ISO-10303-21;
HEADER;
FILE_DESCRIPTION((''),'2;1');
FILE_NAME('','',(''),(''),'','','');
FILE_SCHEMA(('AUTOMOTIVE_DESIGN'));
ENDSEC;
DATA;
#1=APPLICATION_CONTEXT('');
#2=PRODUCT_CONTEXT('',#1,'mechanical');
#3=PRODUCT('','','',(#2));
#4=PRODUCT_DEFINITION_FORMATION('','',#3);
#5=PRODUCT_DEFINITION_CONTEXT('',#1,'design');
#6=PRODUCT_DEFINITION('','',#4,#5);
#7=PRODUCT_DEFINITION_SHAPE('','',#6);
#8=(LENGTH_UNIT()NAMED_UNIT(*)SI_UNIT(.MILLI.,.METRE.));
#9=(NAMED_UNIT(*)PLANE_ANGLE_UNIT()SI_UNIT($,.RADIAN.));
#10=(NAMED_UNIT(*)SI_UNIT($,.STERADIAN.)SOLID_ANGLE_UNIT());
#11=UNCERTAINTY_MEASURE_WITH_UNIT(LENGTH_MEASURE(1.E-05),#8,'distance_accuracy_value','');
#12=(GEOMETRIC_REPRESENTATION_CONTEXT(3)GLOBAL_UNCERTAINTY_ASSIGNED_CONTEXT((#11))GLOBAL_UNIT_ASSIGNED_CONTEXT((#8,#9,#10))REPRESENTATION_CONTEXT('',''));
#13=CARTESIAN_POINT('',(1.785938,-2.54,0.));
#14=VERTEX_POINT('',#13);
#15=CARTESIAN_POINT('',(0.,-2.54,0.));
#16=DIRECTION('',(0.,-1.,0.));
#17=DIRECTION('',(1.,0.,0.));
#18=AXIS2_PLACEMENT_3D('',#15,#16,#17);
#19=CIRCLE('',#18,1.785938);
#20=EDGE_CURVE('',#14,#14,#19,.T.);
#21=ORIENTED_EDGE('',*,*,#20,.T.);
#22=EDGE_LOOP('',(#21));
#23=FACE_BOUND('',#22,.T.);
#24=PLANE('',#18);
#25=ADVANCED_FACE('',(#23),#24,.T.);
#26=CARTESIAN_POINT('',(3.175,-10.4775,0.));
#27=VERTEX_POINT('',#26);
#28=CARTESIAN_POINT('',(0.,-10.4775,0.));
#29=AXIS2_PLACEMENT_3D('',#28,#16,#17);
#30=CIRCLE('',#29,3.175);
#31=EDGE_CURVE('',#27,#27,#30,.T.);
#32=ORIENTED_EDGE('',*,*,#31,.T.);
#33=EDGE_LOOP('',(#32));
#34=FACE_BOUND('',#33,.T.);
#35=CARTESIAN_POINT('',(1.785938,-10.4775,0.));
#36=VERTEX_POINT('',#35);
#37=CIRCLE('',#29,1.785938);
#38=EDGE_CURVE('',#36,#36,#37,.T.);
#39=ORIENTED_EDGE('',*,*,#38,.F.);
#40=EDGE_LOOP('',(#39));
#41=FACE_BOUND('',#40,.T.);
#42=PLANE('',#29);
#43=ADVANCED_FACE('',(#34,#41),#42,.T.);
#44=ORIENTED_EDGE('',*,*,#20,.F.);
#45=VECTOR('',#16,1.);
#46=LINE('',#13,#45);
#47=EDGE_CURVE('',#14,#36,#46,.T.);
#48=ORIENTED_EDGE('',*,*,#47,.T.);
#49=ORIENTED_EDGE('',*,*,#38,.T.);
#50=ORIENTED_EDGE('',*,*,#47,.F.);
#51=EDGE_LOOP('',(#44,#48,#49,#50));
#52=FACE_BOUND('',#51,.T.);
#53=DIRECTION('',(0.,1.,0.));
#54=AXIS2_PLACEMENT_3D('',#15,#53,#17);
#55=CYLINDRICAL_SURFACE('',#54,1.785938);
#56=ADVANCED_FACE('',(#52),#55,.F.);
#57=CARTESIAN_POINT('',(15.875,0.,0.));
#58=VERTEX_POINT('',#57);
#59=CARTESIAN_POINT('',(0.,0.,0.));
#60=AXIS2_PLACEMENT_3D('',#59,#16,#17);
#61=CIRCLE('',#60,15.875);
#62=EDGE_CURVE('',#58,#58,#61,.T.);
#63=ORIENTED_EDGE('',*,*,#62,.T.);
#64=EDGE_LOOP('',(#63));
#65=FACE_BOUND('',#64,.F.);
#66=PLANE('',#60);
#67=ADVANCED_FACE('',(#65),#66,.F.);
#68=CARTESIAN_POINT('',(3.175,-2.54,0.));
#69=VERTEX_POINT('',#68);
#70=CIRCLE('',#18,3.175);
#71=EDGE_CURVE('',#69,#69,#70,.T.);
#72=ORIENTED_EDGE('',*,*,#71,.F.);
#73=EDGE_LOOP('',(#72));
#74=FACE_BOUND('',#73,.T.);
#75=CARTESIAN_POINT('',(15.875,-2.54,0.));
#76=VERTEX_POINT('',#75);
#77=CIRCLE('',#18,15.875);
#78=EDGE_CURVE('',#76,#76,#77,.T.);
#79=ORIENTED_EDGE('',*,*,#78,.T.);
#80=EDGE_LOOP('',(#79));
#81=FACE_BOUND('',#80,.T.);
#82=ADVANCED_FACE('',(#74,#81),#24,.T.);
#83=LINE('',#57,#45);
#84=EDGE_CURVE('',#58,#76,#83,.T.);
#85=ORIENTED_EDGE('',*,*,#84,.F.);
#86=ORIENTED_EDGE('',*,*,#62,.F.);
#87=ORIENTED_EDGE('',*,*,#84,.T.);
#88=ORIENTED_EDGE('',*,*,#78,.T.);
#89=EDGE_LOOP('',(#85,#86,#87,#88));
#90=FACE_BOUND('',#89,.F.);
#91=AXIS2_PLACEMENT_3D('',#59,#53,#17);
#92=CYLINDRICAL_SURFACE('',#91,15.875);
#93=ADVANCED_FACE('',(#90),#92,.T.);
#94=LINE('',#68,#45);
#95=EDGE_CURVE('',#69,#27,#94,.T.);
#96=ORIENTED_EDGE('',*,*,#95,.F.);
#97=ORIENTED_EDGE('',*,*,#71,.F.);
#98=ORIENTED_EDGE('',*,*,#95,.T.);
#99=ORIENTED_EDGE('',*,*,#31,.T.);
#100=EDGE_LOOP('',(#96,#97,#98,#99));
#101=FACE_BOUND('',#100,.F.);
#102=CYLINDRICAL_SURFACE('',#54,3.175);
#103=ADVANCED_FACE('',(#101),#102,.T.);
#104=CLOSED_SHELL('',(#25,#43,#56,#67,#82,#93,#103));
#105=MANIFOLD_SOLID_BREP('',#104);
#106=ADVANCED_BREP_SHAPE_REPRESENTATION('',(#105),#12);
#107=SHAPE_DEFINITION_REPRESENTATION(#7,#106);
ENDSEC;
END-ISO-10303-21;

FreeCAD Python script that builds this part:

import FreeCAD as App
import Part
import Sketcher

V = App.Vector
Q = App.Units.Quantity

doc = App.newDocument("Part")
body = doc.addObject("PartDesign::Body", "Body")

sketch1 = body.newObject("Sketcher::SketchObject", "Sketch")
sketch1.AttachmentSupport = (doc.getObject("XZ_Plane"), [""])
sketch1.MapMode = "FlatFace"
sketch1.addGeometry(Part.Circle(V(0, 0, 0), V(0, 0, 1), 15.875), False)
sketch1.addConstraint([
    Sketcher.Constraint("Coincident", 0, 3, -1, 1),
    Sketcher.Constraint("Diameter", 0, Q("1.25 in")),
])
pad1 = body.newObject("PartDesign::Pad", "Pad")
pad1.Profile = sketch1
pad1.Length = Q("0.1 in")

sketch2 = body.newObject("Sketcher::SketchObject", "Sketch001")
sketch2.AttachmentSupport = (doc.getObject("XZ_Plane"), [""])
sketch2.MapMode = "FlatFace"
sketch2.AttachmentOffset = App.Placement(V(0, 0, 0.1 * 25.4), App.Rotation())
sketch2.addGeometry([
    Part.Circle(V(0, 0, 0), V(0, 0, 1), 3.175),
    Part.Circle(V(0, 0, 0), V(0, 0, 1), 1.785938),
], False)
sketch2.addConstraint([
    Sketcher.Constraint("Coincident", 0, 3, -1, 1),
    Sketcher.Constraint("Coincident", 1, 3, -1, 1),
    Sketcher.Constraint("Diameter", 0, Q("0.25 in")),
    Sketcher.Constraint("Diameter", 1, Q("0.140625 in")),
])
pad2 = body.newObject("PartDesign::Pad", "Pad001")
pad2.Profile = sketch2
pad2.Length = Q("0.3125 in")

doc.recompute()
